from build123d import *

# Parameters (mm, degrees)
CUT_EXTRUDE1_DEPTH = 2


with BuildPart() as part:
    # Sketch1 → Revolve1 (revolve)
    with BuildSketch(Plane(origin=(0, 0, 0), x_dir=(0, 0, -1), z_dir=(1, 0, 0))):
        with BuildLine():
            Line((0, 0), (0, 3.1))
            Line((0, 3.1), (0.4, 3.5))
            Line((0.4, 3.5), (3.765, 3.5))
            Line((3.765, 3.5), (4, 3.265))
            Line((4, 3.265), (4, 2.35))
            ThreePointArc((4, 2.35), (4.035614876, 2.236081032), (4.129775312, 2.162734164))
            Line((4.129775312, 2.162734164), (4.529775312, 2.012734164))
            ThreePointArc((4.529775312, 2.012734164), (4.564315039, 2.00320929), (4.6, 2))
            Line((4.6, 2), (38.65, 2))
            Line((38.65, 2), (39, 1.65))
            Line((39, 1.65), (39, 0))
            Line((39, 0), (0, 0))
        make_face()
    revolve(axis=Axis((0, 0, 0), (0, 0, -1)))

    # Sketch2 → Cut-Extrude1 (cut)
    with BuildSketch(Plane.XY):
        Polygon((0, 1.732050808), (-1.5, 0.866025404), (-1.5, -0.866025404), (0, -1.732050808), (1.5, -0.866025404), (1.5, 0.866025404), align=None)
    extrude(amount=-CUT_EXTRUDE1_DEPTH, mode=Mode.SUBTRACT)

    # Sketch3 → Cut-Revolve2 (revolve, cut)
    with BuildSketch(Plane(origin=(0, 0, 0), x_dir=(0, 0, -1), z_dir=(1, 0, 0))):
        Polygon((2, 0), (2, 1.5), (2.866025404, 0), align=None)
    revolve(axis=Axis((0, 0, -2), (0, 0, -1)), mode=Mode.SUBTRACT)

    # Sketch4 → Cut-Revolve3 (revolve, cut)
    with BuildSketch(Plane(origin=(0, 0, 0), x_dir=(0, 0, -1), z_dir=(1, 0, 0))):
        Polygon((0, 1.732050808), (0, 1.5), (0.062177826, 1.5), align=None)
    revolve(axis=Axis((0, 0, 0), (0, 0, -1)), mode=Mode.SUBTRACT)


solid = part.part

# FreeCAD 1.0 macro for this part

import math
import FreeCAD as App
import Part
import Sketcher

V = App.Vector
Q = App.Units.Quantity


def add_polygon(sketch, points):
    """Adds a closed chain of lines whose ends are joined by coincident constraints."""
    first, n = sketch.GeometryCount, len(points)
    for a, b in zip(points, points[1:] + points[:1]):
        sketch.addGeometry(Part.LineSegment(App.Vector(*a, 0), App.Vector(*b, 0)), False)
    for i in range(n):
        sketch.addConstraint(Sketcher.Constraint("Coincident", first + i, 2, first + (i + 1) % n, 1))

doc = App.newDocument("Part")
body = doc.addObject("PartDesign::Body", "Body")

# Sketch on YZ plane
sketch1 = doc.addObject("Sketcher::SketchObject", "Sketch")
body.addObject(sketch1)
sketch1.AttachmentSupport = (doc.YZ_Plane, [""])
sketch1.MapMode = "FlatFace"
sketch1.addGeometry([
    Part.LineSegment(V(3.1, 0, 0), V(0, 0, 0)),  # 0
    Part.LineSegment(V(0, 0, 0), V(0, -39, 0)),  # 1
    Part.LineSegment(V(0, -39, 0), V(1.65, -39, 0)),  # 2
    Part.LineSegment(V(1.65, -39, 0), V(2, -38.65, 0)),  # 3
    Part.LineSegment(V(2, -38.65, 0), V(2, -4.6, 0)),  # 4
    Part.ArcOfCircle(Part.Circle(V(2.2, -4.6, 0), V(0, 0, 1), 0.2), math.radians(159), math.radians(180)),  # 5
    Part.LineSegment(V(2.01, -4.53, 0), V(2.16, -4.13, 0)),  # 6
    Part.ArcOfCircle(Part.Circle(V(2.35, -4.2, 0), V(0, 0, 1), 0.2), math.radians(90), math.radians(159)),  # 7
    Part.LineSegment(V(2.35, -4, 0), V(3.27, -4, 0)),  # 8
    Part.LineSegment(V(3.27, -4, 0), V(3.5, -3.77, 0)),  # 9
    Part.LineSegment(V(3.5, -3.77, 0), V(3.5, -0.4, 0)),  # 10
    Part.LineSegment(V(3.5, -0.4, 0), V(3.1, 0, 0)),  # 11
], False)
sketch1.addConstraint([
    Sketcher.Constraint("Coincident", 0, 2, 1, 1),
    Sketcher.Constraint("Coincident", 1, 2, 2, 1),
    Sketcher.Constraint("Coincident", 2, 2, 3, 1),
    Sketcher.Constraint("Coincident", 3, 2, 4, 1),
    Sketcher.Constraint("Tangent", 4, 2, 5, 2),
    Sketcher.Constraint("Tangent", 5, 1, 6, 1),
    Sketcher.Constraint("Tangent", 6, 2, 7, 2),
    Sketcher.Constraint("Tangent", 7, 1, 8, 1),
    Sketcher.Constraint("Coincident", 8, 2, 9, 1),
    Sketcher.Constraint("Coincident", 9, 2, 10, 1),
    Sketcher.Constraint("Coincident", 10, 2, 11, 1),
    Sketcher.Constraint("Coincident", 11, 2, 0, 1),
    Sketcher.Constraint("Horizontal", 0),
    Sketcher.Constraint("Vertical", 1),
    Sketcher.Constraint("Horizontal", 2),
    Sketcher.Constraint("Vertical", 4),
    Sketcher.Constraint("Horizontal", 8),
    Sketcher.Constraint("Vertical", 10),
    Sketcher.Constraint("Coincident", 0, 2, -1, 1),
    Sketcher.Constraint("Equal", 5, 7),
    Sketcher.Constraint("Parallel", 3, 9),
    Sketcher.Constraint("Perpendicular", 9, 11),
    Sketcher.Constraint("Radius", 5, Q("0.2 mm")),
    Sketcher.Constraint("DistanceY", 1, 2, 1, 1, Q("39 mm")),
    Sketcher.Constraint("Angle", 3, Q("45 deg")),
    Sketcher.Constraint("DistanceX", 0, 2, 0, 1, Q("3.1 mm")),
    Sketcher.Constraint("DistanceX", -1, 1, 3, 2, Q("2 mm")),
    Sketcher.Constraint("DistanceY", 7, 1, -1, 1, Q("4 mm")),
    Sketcher.Constraint("DistanceX", 2, 1, 2, 2, Q("1.65 mm")),
    Sketcher.Constraint("DistanceY", 4, 1, 4, 2, Q("34.05 mm")),
    Sketcher.Constraint("DistanceX", -1, 1, 9, 2, Q("3.5 mm")),
    Sketcher.Constraint("DistanceX", 2, 2, 7, 3, Q("0.7 mm")),
    Sketcher.Constraint("DistanceX", 8, 1, 8, 2, Q("0.915 mm")),
])
revolution = doc.addObject("PartDesign::Revolution", "Revolution")
body.addObject(revolution)
revolution.Profile = sketch1
revolution.ReferenceAxis = (sketch1, ["V_Axis"])
revolution.Angle = 360

# Sketch on XY plane
sketch2 = doc.addObject("Sketcher::SketchObject", "Sketch001")
body.addObject(sketch2)
sketch2.AttachmentSupport = (doc.XY_Plane, [""])
sketch2.MapMode = "FlatFace"
add_polygon(sketch2, [(0, 1.7), (-1.5, 0.9), (-1.5, -0.9), (0, -1.7), (1.5, -0.9), (1.5, 0.9)])  # lines 0-5
sketch2.addConstraint([
    Sketcher.Constraint("Vertical", 1),
    Sketcher.Constraint("Vertical", 4),
    Sketcher.Constraint("Symmetric", 0, 2, 3, 2, -1, 1),
    Sketcher.Constraint("Symmetric", 2, 2, 5, 2, -1, 1),
    Sketcher.Constraint("PointOnObject", 2, 2, -2),
    Sketcher.Constraint("Parallel", 2, 5),
    Sketcher.Constraint("Horizontal", 1, 2, 3, 2),
    Sketcher.Constraint("Angle", 0, Q("-150 deg")),
    Sketcher.Constraint("DistanceX", 1, 2, 3, 2, Q("3 mm")),
    Sketcher.Constraint("DistanceY", 1, 2, 1, 1, Q("1.732051 mm")),
])
pocket1 = doc.addObject("PartDesign::Pocket", "Pocket")
body.addObject(pocket1)
pocket1.Profile = sketch2
pocket1.Length = 2

# Sketch on YZ plane
sketch3 = doc.addObject("Sketcher::SketchObject", "Sketch002")
body.addObject(sketch3)
sketch3.AttachmentSupport = (doc.YZ_Plane, [""])
sketch3.MapMode = "FlatFace"
add_polygon(sketch3, [(1.5, -2), (0, -2), (0, -2.9)])  # lines 0-2
sketch3.addConstraint([
    Sketcher.Constraint("Horizontal", 0),
    Sketcher.Constraint("Vertical", 1),
    Sketcher.Constraint("PointOnObject", 0, 2, -2),
    Sketcher.Constraint("Angle", 2, Q("30 deg")),
    Sketcher.Constraint("DistanceX", 0, 2, 0, 1, Q("1.5 mm")),
    Sketcher.Constraint("DistanceY", 0, 2, -1, 1, Q("2 mm")),
])
groove = doc.addObject("PartDesign::Groove", "Groove")
body.addObject(groove)
groove.Profile = sketch3
groove.ReferenceAxis = (sketch3, ["V_Axis"])
groove.Angle = 360

# Sketch on YZ plane
sketch4 = doc.addObject("Sketcher::SketchObject", "Sketch003")
body.addObject(sketch4)
sketch4.AttachmentSupport = (doc.YZ_Plane, [""])
sketch4.MapMode = "FlatFace"
add_polygon(sketch4, [(1.73, 0), (1.5, 0), (1.5, -0.06)])  # lines 0-2
sketch4.addConstraint([
    Sketcher.Constraint("Horizontal", 0),
    Sketcher.Constraint("Vertical", 1),
    Sketcher.Constraint("PointOnObject", 0, 2, -1),
    Sketcher.Constraint("Angle", 2, Q("15 deg")),
    Sketcher.Constraint("DistanceX", -1, 1, 0, 2, Q("1.5 mm")),
    Sketcher.Constraint("DistanceX", 0, 2, 0, 1, Q("0.232051 mm")),
])
groove2 = doc.addObject("PartDesign::Groove", "Groove001")
body.addObject(groove2)
groove2.Profile = sketch4
groove2.ReferenceAxis = (sketch4, ["V_Axis"])
groove2.Angle = 360

doc.recompute()
